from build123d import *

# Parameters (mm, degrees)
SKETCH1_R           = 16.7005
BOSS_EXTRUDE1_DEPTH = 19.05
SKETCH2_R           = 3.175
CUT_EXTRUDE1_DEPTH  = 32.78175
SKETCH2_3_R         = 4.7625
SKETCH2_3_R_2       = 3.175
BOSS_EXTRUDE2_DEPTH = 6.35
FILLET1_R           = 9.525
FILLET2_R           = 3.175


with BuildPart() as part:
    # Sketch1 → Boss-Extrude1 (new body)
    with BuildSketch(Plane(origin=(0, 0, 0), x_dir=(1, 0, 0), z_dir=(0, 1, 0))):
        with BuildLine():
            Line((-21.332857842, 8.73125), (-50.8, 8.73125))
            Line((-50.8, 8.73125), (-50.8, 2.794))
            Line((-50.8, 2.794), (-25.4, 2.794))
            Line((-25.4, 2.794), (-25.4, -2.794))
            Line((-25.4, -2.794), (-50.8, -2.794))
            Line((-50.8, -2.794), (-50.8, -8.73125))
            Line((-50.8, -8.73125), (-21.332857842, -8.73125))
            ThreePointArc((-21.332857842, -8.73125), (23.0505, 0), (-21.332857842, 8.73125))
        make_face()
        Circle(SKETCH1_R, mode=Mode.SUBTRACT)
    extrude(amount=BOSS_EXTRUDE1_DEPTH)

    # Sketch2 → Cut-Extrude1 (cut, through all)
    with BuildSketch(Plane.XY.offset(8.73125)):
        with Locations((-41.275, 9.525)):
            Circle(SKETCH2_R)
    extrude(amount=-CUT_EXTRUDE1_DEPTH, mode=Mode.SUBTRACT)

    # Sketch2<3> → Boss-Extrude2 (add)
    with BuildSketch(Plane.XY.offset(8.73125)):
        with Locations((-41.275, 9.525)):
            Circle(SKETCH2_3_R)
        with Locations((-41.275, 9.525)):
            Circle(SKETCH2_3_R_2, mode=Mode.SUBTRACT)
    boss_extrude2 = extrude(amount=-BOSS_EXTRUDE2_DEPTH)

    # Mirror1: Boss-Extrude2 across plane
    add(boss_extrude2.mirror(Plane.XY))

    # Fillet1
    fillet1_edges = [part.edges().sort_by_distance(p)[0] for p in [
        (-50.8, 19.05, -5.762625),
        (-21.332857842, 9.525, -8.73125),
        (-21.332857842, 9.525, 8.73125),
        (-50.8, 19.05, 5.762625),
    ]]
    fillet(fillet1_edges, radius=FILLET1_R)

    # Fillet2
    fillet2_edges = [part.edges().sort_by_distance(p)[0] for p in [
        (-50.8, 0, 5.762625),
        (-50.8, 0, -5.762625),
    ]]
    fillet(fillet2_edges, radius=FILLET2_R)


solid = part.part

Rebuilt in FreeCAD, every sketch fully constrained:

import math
import FreeCAD as App
import Part
import Sketcher
from FreeCAD import Vector
Q = App.Units.Quantity


def edges_at(feature, points):
    """Names of the edges that pass closest to the given points."""
    edges = feature.Shape.Edges
    near = lambda p: min(range(len(edges)), key=lambda i: edges[i].distToShape(Part.Vertex(*p))[0])
    return sorted({f"Edge{near(p) + 1}" for p in points})

doc = App.newDocument("Part")
body = doc.addObject("PartDesign::Body", "Body")

# Sketch on XZ plane
sketch1 = body.newObject("Sketcher::SketchObject", "Sketch")
sketch1.AttachmentSupport = (doc.getObject("XZ_Plane"), [""])
sketch1.MapMode = "FlatFace"
sketch1.addGeometry([
    Part.LineSegment(Vector(-21, -9, 0), Vector(-51, -9, 0)),  # 0
    Part.LineSegment(Vector(-51, -9, 0), Vector(-51, -3, 0)),  # 1
    Part.LineSegment(Vector(-51, -3, 0), Vector(-25, -3, 0)),  # 2
    Part.LineSegment(Vector(-25, -3, 0), Vector(-25, 3, 0)),  # 3
    Part.LineSegment(Vector(-25, 3, 0), Vector(-51, 3, 0)),  # 4
    Part.LineSegment(Vector(-51, 3, 0), Vector(-51, 9, 0)),  # 5
    Part.LineSegment(Vector(-51, 9, 0), Vector(-21, 9, 0)),  # 6
    Part.ArcOfCircle(Part.Circle(Vector(0, 0, 0), Vector(0, 0, 1), 23), math.radians(-158), math.radians(158)),  # 7
    Part.Circle(Vector(0, 0, 0), Vector(0, 0, 1), 17),  # 8
], False)
sketch1.addConstraint([
    Sketcher.Constraint("Coincident", 0, 2, 1, 1),
    Sketcher.Constraint("Coincident", 1, 2, 2, 1),
    Sketcher.Constraint("Coincident", 2, 2, 3, 1),
    Sketcher.Constraint("Coincident", 3, 2, 4, 1),
    Sketcher.Constraint("Coincident", 4, 2, 5, 1),
    Sketcher.Constraint("Coincident", 5, 2, 6, 1),
    Sketcher.Constraint("Coincident", 6, 2, 7, 2),
    Sketcher.Constraint("Coincident", 7, 1, 0, 1),
    Sketcher.Constraint("Horizontal", 0),
    Sketcher.Constraint("Vertical", 1),
    Sketcher.Constraint("Horizontal", 2),
    Sketcher.Constraint("Vertical", 3),
    Sketcher.Constraint("Horizontal", 4),
    Sketcher.Constraint("Vertical", 5),
    Sketcher.Constraint("Horizontal", 6),
    Sketcher.Constraint("Coincident", 7, 3, -1, 1),
    Sketcher.Constraint("Coincident", 8, 3, -1, 1),
    Sketcher.Constraint("Symmetric", 1, 2, 4, 2, -1),
    Sketcher.Constraint("Vertical", 6, 2, 7, 1),
    Sketcher.Constraint("DistanceX", 2, 1, 2, 2, Q("1 in")),
    Sketcher.Constraint("Diameter", 8, Q("1.315 in")),
    Sketcher.Constraint("DistanceX", 0, 2, -1, 1, Q("2 in")),
    Sketcher.Constraint("DistanceY", 3, 1, 3, 2, Q("0.22 in")),
    Sketcher.Constraint("Radius", 7, Q("0.9075 in")),
    Sketcher.Constraint("DistanceY", 0, 2, -1, 1, Q("0.34375 in")),
])
pad1 = body.newObject("PartDesign::Pad", "Pad")
pad1.Profile = sketch1
pad1.Length = Q("0.75 in")
pad1.Reversed = True

# Sketch on XY plane
sketch2 = body.newObject("Sketcher::SketchObject", "Sketch001")
sketch2.AttachmentSupport = (doc.getObject("XY_Plane"), [""])
sketch2.MapMode = "FlatFace"
sketch2.AttachmentOffset = App.Placement(Vector(0, 0, 0.34375 * 25.4), App.Rotation())
sketch2.addGeometry(Part.Circle(Vector(-41.3, 9.5, 0), Vector(0, 0, 1), 3.2), False)
sketch2.addConstraint([
    Sketcher.Constraint("Diameter", 0, Q("0.25 in")),
    Sketcher.Constraint("DistanceX", 0, 3, -1, 1, Q("1.625 in")),
    Sketcher.Constraint("DistanceY", -1, 1, 0, 3, Q("0.375 in")),
])
pocket1 = body.newObject("PartDesign::Pocket", "Pocket")
pocket1.Profile = sketch2
pocket1.Type = "ThroughAll"

# Sketch on XY plane
sketch3 = body.newObject("Sketcher::SketchObject", "Sketch002")
sketch3.AttachmentSupport = (doc.getObject("XY_Plane"), [""])
sketch3.MapMode = "FlatFace"
sketch3.AttachmentOffset = App.Placement(Vector(0, 0, 0.34375 * 25.4), App.Rotation())
sketch3.addGeometry([
    Part.Circle(Vector(-41.3, 9.5, 0), Vector(0, 0, 1), 4.8),
    Part.Circle(Vector(-41.3, 9.5, 0), Vector(0, 0, 1), 3.2),
], False)
sketch3.addConstraint([
    Sketcher.Constraint("Coincident", 1, 3, 0, 3),
    Sketcher.Constraint("Diameter", 1, Q("0.25 in")),
    Sketcher.Constraint("Diameter", 0, Q("0.375 in")),
    Sketcher.Constraint("DistanceX", 0, 3, -1, 1, Q("1.625 in")),
    Sketcher.Constraint("DistanceY", -1, 1, 0, 3, Q("0.375 in")),
])
pad2 = body.newObject("PartDesign::Pad", "Pad001")
pad2.Profile = sketch3
pad2.Length = Q("0.25 in")
pad2.Reversed = True
doc.recompute()

mirrored = body.newObject("PartDesign::Mirrored", "Mirrored")
mirrored.Originals = [pad2]
mirrored.MirrorPlane = (doc.getObject("XY_Plane"), [""])
body.Tip = mirrored
doc.recompute()

fillet = body.newObject("PartDesign::Fillet", "Fillet")
fillet.Base = (mirrored, edges_at(mirrored, [
    (-50.8, 19.05, -5.763),
    (-21.333, 9.525, -8.731),
    (-21.333, 9.525, 8.731),
    (-50.8, 19.05, 5.763),
]))
fillet.Radius = Q("0.375 in")
doc.recompute()

fillet2 = body.newObject("PartDesign::Fillet", "Fillet001")
fillet2.Base = (fillet, edges_at(fillet, [(-50.8, 0, 5.763), (-50.8, 0, -5.763)]))
fillet2.Radius = Q("0.125 in")

doc.recompute()
